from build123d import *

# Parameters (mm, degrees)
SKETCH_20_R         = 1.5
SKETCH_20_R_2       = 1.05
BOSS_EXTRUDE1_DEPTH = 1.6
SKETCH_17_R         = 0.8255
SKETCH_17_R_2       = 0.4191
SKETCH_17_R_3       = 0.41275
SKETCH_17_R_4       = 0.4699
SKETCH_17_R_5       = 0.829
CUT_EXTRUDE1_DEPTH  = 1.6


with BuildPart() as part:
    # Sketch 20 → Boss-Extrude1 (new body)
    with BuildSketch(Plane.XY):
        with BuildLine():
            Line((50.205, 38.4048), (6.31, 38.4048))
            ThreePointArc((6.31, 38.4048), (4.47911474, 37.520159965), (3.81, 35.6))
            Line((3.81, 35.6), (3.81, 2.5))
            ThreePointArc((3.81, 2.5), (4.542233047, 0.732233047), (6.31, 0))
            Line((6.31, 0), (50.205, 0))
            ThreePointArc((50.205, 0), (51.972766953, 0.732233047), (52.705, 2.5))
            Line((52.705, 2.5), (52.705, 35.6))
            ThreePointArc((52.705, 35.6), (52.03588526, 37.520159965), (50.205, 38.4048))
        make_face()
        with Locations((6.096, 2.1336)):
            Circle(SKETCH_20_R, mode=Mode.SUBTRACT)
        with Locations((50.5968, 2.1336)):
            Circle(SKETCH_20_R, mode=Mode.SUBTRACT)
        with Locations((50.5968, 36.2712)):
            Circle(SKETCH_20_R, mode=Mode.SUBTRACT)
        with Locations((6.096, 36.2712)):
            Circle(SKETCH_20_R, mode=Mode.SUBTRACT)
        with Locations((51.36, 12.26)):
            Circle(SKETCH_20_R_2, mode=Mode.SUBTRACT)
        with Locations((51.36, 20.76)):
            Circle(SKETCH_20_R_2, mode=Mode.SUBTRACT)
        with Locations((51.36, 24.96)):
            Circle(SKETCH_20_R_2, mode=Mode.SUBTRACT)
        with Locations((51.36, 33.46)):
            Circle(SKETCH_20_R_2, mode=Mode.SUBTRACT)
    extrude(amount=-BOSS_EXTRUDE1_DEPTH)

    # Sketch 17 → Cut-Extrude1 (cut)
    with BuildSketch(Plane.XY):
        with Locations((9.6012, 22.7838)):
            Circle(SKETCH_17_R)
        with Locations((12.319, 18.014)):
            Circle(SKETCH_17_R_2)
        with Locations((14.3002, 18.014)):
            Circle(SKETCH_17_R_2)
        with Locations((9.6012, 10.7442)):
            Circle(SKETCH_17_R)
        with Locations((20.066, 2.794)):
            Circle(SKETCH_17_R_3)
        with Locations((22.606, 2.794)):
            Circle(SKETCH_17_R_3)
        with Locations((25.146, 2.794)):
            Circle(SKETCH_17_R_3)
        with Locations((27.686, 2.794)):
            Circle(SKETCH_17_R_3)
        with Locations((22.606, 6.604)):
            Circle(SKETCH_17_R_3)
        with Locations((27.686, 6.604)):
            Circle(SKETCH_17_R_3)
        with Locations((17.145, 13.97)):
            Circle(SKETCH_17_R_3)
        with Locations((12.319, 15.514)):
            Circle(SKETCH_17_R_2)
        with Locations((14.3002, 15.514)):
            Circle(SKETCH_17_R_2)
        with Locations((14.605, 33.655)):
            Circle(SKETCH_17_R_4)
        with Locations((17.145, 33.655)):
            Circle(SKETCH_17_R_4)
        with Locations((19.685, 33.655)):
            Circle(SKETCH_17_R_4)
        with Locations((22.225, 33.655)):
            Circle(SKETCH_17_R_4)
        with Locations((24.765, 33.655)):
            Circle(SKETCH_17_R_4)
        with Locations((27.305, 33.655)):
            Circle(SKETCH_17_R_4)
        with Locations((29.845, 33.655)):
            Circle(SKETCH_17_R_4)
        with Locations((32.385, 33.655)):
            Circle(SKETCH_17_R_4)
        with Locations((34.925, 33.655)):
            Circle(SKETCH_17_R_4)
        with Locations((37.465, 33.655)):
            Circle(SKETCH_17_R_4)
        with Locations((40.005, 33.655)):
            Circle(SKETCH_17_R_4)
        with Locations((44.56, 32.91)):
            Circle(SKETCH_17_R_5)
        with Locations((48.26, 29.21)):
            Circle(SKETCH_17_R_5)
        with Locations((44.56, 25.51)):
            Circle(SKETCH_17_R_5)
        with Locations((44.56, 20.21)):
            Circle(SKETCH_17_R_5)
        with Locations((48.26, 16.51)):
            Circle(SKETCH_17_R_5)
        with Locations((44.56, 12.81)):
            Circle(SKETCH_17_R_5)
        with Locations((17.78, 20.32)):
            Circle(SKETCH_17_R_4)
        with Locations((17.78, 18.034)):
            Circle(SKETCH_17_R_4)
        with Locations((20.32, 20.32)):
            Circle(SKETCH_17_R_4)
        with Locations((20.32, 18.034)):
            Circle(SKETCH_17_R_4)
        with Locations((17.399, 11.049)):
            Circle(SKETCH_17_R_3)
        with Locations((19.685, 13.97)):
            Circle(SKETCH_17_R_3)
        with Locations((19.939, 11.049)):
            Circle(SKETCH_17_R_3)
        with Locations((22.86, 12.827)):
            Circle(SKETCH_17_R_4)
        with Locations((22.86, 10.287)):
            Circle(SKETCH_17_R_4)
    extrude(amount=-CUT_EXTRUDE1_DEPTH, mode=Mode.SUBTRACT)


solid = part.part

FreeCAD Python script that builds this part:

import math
import FreeCAD as App
import Part
import Sketcher
from FreeCAD import Vector
Q = App.Units.Quantity

doc = App.newDocument("Part")
params = doc.addObject("Spreadsheet::Sheet", "Params")
for row, (alias, value) in enumerate([
    ("sketch1_diameter", "3 mm"),
    ("sketch1_diameter2", "2.1 mm"),
    ("sketch1_radius", "2.5 mm"),
    ("sketch1_height", "33.1 mm"),
    ("pad1_length", "1.6 mm"),
    ("pocket1_length", "1.6 mm"),
], start=1):
    params.set(f"A{row}", alias)
    params.set(f"B{row}", "=" + value)
    params.setAlias(f"B{row}", alias)

body = doc.addObject("PartDesign::Body", "Body")

sketch1 = doc.addObject("Sketcher::SketchObject", "Sketch")
body.addObject(sketch1)
sketch1.AttachmentSupport = (doc.XY_Plane, [""])
sketch1.MapMode = "FlatFace"
sketch1.addGeometry([
    Part.LineSegment(Vector(50.205, 38.4048, 0), Vector(6.31, 38.4048, 0)),
    Part.ArcOfCircle(Part.Circle(Vector(6.462427, 35.752376, 0), Vector(0, 0, 1), 2.6568), math.radians(93.288998), math.radians(183.287904)),
    Part.LineSegment(Vector(3.81, 35.6, 0), Vector(3.81, 2.5, 0)),
    Part.ArcOfCircle(Part.Circle(Vector(6.31, 2.5, 0), Vector(0, 0, 1), 2.5), math.radians(180), math.radians(270)),
    Part.LineSegment(Vector(6.31, 0, 0), Vector(50.205, 0, 0)),
    Part.ArcOfCircle(Part.Circle(Vector(50.205, 2.5, 0), Vector(0, 0, 1), 2.5), math.radians(-90), math.radians(0)),
    Part.LineSegment(Vector(52.705, 2.5, 0), Vector(52.705, 35.6, 0)),
    Part.ArcOfCircle(Part.Circle(Vector(50.052573, 35.752376, 0), Vector(0, 0, 1), 2.6568), math.radians(-3.287904), math.radians(86.711002)),
    Part.Circle(Vector(6.096, 2.1336, 0), Vector(0, 0, 1), 1.5),
    Part.Circle(Vector(50.5968, 2.1336, 0), Vector(0, 0, 1), 1.5),
    Part.Circle(Vector(51.36, 12.26, 0), Vector(0, 0, 1), 1.05),
    Part.Circle(Vector(6.096, 36.2712, 0), Vector(0, 0, 1), 1.5),
    Part.Circle(Vector(51.36, 20.76, 0), Vector(0, 0, 1), 1.05),
    Part.Circle(Vector(51.36, 24.96, 0), Vector(0, 0, 1), 1.05),
    Part.Circle(Vector(51.36, 33.46, 0), Vector(0, 0, 1), 1.05),
    Part.Circle(Vector(50.5968, 36.2712, 0), Vector(0, 0, 1), 1.5),
], False)
sketch1.addConstraint([
    Sketcher.Constraint("Coincident", 0, 2, 1, 1),
    Sketcher.Constraint("Coincident", 1, 2, 2, 1),
    Sketcher.Constraint("Tangent", 2, 2, 3, 1),
    Sketcher.Constraint("Tangent", 3, 2, 4, 1),
    Sketcher.Constraint("Tangent", 4, 2, 5, 1),
    Sketcher.Constraint("Tangent", 5, 2, 6, 1),
    Sketcher.Constraint("Coincident", 6, 2, 7, 1),
    Sketcher.Constraint("Coincident", 7, 2, 0, 1),
    Sketcher.Constraint("Horizontal", 0),
    Sketcher.Constraint("Vertical", 2),
    Sketcher.Constraint("Horizontal", 4),
    Sketcher.Constraint("Vertical", 6),
    Sketcher.Constraint("Equal", 3, 5),
    Sketcher.Constraint("Equal", 1, 7),
    Sketcher.Constraint("Equal", 8, 9),
    Sketcher.Constraint("Equal", 9, 11),
    Sketcher.Constraint("Equal", 10, 12),
    Sketcher.Constraint("Equal", 12, 13),
    Sketcher.Constraint("Equal", 13, 14),
    Sketcher.Constraint("Equal", 11, 15),
    Sketcher.Constraint("PointOnObject", 3, 2, -1),
    Sketcher.Constraint("Horizontal", 1, 3, 7, 3),
    Sketcher.Constraint("Horizontal", 8, 3, 9, 3),
    Sketcher.Constraint("Horizontal", 11, 3, 15, 3),
    Sketcher.Constraint("Horizontal", 1, 2, 6, 2),
    Sketcher.Constraint("Vertical", 8, 3, 11, 3),
    Sketcher.Constraint("Vertical", 10, 3, 12, 3),
    Sketcher.Constraint("Vertical", 12, 3, 13, 3),
    Sketcher.Constraint("Vertical", 13, 3, 14, 3),
    Sketcher.Constraint("Vertical", 9, 3, 15, 3),
    Sketcher.Constraint("Vertical", 3, 3, 0, 2),
    Sketcher.Constraint("Diameter", 8, Q("3 mm")),
    Sketcher.Constraint("Diameter", 10, Q("2.1 mm")),
    Sketcher.Constraint("Radius", 3, Q("2.5 mm")),
    Sketcher.Constraint("DistanceY", 2, 2, 2, 1, Q("33.1 mm")),
    Sketcher.Constraint("Radius", 1, Q("2.6568 mm")),
    Sketcher.Constraint("DistanceY", 10, 3, 12, 3, Q("8.5 mm")),
    Sketcher.Constraint("DistanceY", 12, 3, 13, 3, Q("4.2 mm")),
    Sketcher.Constraint("DistanceY", 13, 3, 14, 3, Q("8.5 mm")),
    Sketcher.Constraint("DistanceX", 0, 2, 0, 1, Q("43.895 mm")),
    Sketcher.Constraint("DistanceX", -1, 1, 3, 3, Q("6.31 mm")),
    Sketcher.Constraint("DistanceX", -1, 1, 10, 3, Q("51.36 mm")),
    Sketcher.Constraint("DistanceY", -1, 1, 10, 3, Q("12.26 mm")),
    Sketcher.Constraint("DistanceX", -1, 1, 8, 3, Q("6.096 mm")),
    Sketcher.Constraint("DistanceY", -1, 1, 8, 3, Q("2.1336 mm")),
    Sketcher.Constraint("DistanceX", -1, 1, 9, 3, Q("50.5968 mm")),
    Sketcher.Constraint("DistanceY", -1, 1, 11, 3, Q("36.2712 mm")),
    Sketcher.Constraint("DistanceY", -1, 1, 0, 2, Q("38.4048 mm")),
])
sketch1.setExpression("Constraints[31]", "Params.sketch1_diameter")
sketch1.setExpression("Constraints[32]", "Params.sketch1_diameter2")
sketch1.setExpression("Constraints[33]", "Params.sketch1_radius")
sketch1.setExpression("Constraints[34]", "Params.sketch1_height")
pad1 = doc.addObject("PartDesign::Pad", "Pad")
body.addObject(pad1)
pad1.Profile = sketch1
pad1.setExpression("Length", "Params.pad1_length")
pad1.Reversed = True

sketch2 = doc.addObject("Sketcher::SketchObject", "Sketch001")
body.addObject(sketch2)
sketch2.AttachmentSupport = (doc.XY_Plane, [""])
sketch2.MapMode = "FlatFace"
sketch2.addGeometry([
    Part.Circle(Vector(9.6012, 22.7838, 0), Vector(0, 0, 1), 0.8255),
    Part.Circle(Vector(12.319, 18.014, 0), Vector(0, 0, 1), 0.4191),
    Part.Circle(Vector(14.3002, 18.014, 0), Vector(0, 0, 1), 0.4191),
    Part.Circle(Vector(9.6012, 10.7442, 0), Vector(0, 0, 1), 0.8255),
    Part.Circle(Vector(20.066, 2.794, 0), Vector(0, 0, 1), 0.41275),
    Part.Circle(Vector(22.606, 2.794, 0), Vector(0, 0, 1), 0.41275),
    Part.Circle(Vector(25.146, 2.794, 0), Vector(0, 0, 1), 0.41275),
    Part.Circle(Vector(27.686, 2.794, 0), Vector(0, 0, 1), 0.41275),
    Part.Circle(Vector(22.606, 6.604, 0), Vector(0, 0, 1), 0.41275),
    Part.Circle(Vector(27.686, 6.604, 0), Vector(0, 0, 1), 0.41275),
    Part.Circle(Vector(17.145, 13.97, 0), Vector(0, 0, 1), 0.41275),
    Part.Circle(Vector(12.319, 15.514, 0), Vector(0, 0, 1), 0.4191),
    Part.Circle(Vector(14.3002, 15.514, 0), Vector(0, 0, 1), 0.4191),
    Part.Circle(Vector(14.605, 33.655, 0), Vector(0, 0, 1), 0.4699),
    Part.Circle(Vector(17.145, 33.655, 0), Vector(0, 0, 1), 0.4699),
    Part.Circle(Vector(19.685, 33.655, 0), Vector(0, 0, 1), 0.4699),
    Part.Circle(Vector(22.225, 33.655, 0), Vector(0, 0, 1), 0.4699),
    Part.Circle(Vector(24.765, 33.655, 0), Vector(0, 0, 1), 0.4699),
    Part.Circle(Vector(27.305, 33.655, 0), Vector(0, 0, 1), 0.4699),
    Part.Circle(Vector(29.845, 33.655, 0), Vector(0, 0, 1), 0.4699),
    Part.Circle(Vector(32.385, 33.655, 0), Vector(0, 0, 1), 0.4699),
    Part.Circle(Vector(34.925, 33.655, 0), Vector(0, 0, 1), 0.4699),
    Part.Circle(Vector(37.465, 33.655, 0), Vector(0, 0, 1), 0.4699),
    Part.Circle(Vector(40.005, 33.655, 0), Vector(0, 0, 1), 0.4699),
    Part.Circle(Vector(44.56, 32.91, 0), Vector(0, 0, 1), 0.829),
    Part.Circle(Vector(48.26, 29.21, 0), Vector(0, 0, 1), 0.829),
    Part.Circle(Vector(44.56, 25.51, 0), Vector(0, 0, 1), 0.829),
    Part.Circle(Vector(44.56, 20.21, 0), Vector(0, 0, 1), 0.829),
    Part.Circle(Vector(48.26, 16.51, 0), Vector(0, 0, 1), 0.829),
    Part.Circle(Vector(44.56, 12.81, 0), Vector(0, 0, 1), 0.829),
    Part.Circle(Vector(17.78, 20.32, 0), Vector(0, 0, 1), 0.4699),
    Part.Circle(Vector(17.78, 18.034, 0), Vector(0, 0, 1), 0.4699),
    Part.Circle(Vector(20.32, 20.32, 0), Vector(0, 0, 1), 0.4699),
    Part.Circle(Vector(20.32, 18.034, 0), Vector(0, 0, 1), 0.4699),
    Part.Circle(Vector(17.399, 11.049, 0), Vector(0, 0, 1), 0.41275),
    Part.Circle(Vector(19.685, 13.97, 0), Vector(0, 0, 1), 0.41275),
    Part.Circle(Vector(19.939, 11.049, 0), Vector(0, 0, 1), 0.41275),
    Part.Circle(Vector(22.86, 12.827, 0), Vector(0, 0, 1), 0.4699),
    Part.Circle(Vector(22.86, 10.287, 0), Vector(0, 0, 1), 0.4699),
], False)
sketch2.addConstraint([
    Sketcher.Constraint("Equal", 1, 2),
    Sketcher.Constraint("Equal", 0, 3),
    Sketcher.Constraint("Equal", 4, 5),
    Sketcher.Constraint("Equal", 5, 6),
    Sketcher.Constraint("Equal", 6, 7),
    Sketcher.Constraint("Equal", 7, 8),
    Sketcher.Constraint("Equal", 8, 9),
    Sketcher.Constraint("Equal", 9, 10),
    Sketcher.Constraint("Equal", 2, 11),
    Sketcher.Constraint("Equal", 11, 12),
    Sketcher.Constraint("Equal", 13, 14),
    Sketcher.Constraint("Equal", 14, 15),
    Sketcher.Constraint("Equal", 15, 16),
    Sketcher.Constraint("Equal", 16, 17),
    Sketcher.Constraint("Equal", 17, 18),
    Sketcher.Constraint("Equal", 18, 19),
    Sketcher.Constraint("Equal", 19, 20),
    Sketcher.Constraint("Equal", 20, 21),
    Sketcher.Constraint("Equal", 21, 22),
    Sketcher.Constraint("Equal", 22, 23),
    Sketcher.Constraint("Equal", 24, 25),
    Sketcher.Constraint("Equal", 25, 26),
    Sketcher.Constraint("Equal", 26, 27),
    Sketcher.Constraint("Equal", 27, 28),
    Sketcher.Constraint("Equal", 28, 29),
    Sketcher.Constraint("Equal", 23, 30),
    Sketcher.Constraint("Equal", 30, 31),
    Sketcher.Constraint("Equal", 31, 32),
    Sketcher.Constraint("Equal", 32, 33),
    Sketcher.Constraint("Equal", 10, 34),
    Sketcher.Constraint("Equal", 34, 35),
    Sketcher.Constraint("Equal", 35, 36),
    Sketcher.Constraint("Equal", 33, 37),
    Sketcher.Constraint("Equal", 37, 38),
    Sketcher.Constraint("Horizontal", 1, 3, 2, 3),
    Sketcher.Constraint("Horizontal", 4, 3, 5, 3),
    Sketcher.Constraint("Horizontal", 5, 3, 6, 3),
    Sketcher.Constraint("Horizontal", 6, 3, 7, 3),
    Sketcher.Constraint("Horizontal", 8, 3, 9, 3),
    Sketcher.Constraint("Horizontal", 11, 3, 12, 3),
    Sketcher.Constraint("Horizontal", 13, 3, 14, 3),
    Sketcher.Constraint("Horizontal", 14, 3, 15, 3),
    Sketcher.Constraint("Horizontal", 15, 3, 16, 3),
    Sketcher.Constraint("Horizontal", 16, 3, 17, 3),
    Sketcher.Constraint("Horizontal", 17, 3, 18, 3),
    Sketcher.Constraint("Horizontal", 18, 3, 19, 3),
    Sketcher.Constraint("Horizontal", 19, 3, 20, 3),
    Sketcher.Constraint("Horizontal", 20, 3, 21, 3),
    Sketcher.Constraint("Horizontal", 21, 3, 22, 3),
    Sketcher.Constraint("Horizontal", 22, 3, 23, 3),
    Sketcher.Constraint("Horizontal", 30, 3, 32, 3),
    Sketcher.Constraint("Horizontal", 31, 3, 33, 3),
    Sketcher.Constraint("Horizontal", 10, 3, 35, 3),
    Sketcher.Constraint("Horizontal", 34, 3, 36, 3),
    Sketcher.Constraint("Vertical", 0, 3, 3, 3),
    Sketcher.Constraint("Vertical", 5, 3, 8, 3),
    Sketcher.Constraint("Vertical", 7, 3, 9, 3),
    Sketcher.Constraint("Vertical", 1, 3, 11, 3),
    Sketcher.Constraint("Vertical", 2, 3, 12, 3),
    Sketcher.Constraint("Vertical", 10, 3, 14, 3),
    Sketcher.Constraint("Vertical", 24, 3, 26, 3),
    Sketcher.Constraint("Vertical", 26, 3, 27, 3),
    Sketcher.Constraint("Vertical", 25, 3, 28, 3),
    Sketcher.Constraint("Vertical", 27, 3, 29, 3),
    Sketcher.Constraint("Vertical", 30, 3, 31, 3),
    Sketcher.Constraint("Vertical", 32, 3, 33, 3),
    Sketcher.Constraint("Vertical", 15, 3, 35, 3),
    Sketcher.Constraint("Vertical", 37, 3, 38, 3),
    Sketcher.Constraint("Diameter", 0, Q("1.651 mm")),
    Sketcher.Constraint("Diameter", 24, Q("1.658 mm")),
    Sketcher.Constraint("DistanceY", 27, 3, 25, 3, Q("9 mm")),
    Sketcher.Constraint("DistanceY", 28, 3, 26, 3, Q("9 mm")),
    Sketcher.Constraint("Diameter", 1, Q("0.8382 mm")),
    Sketcher.Constraint("Diameter", 4, Q("0.8255 mm")),
    Sketcher.Constraint("Diameter", 13, Q("0.9398 mm")),
    Sketcher.Constraint("DistanceY", 11, 3, 1, 3, Q("2.5 mm")),
    Sketcher.Constraint("DistanceX", 13, 3, 18, 3, Q("12.7 mm")),
    Sketcher.Constraint("DistanceX", 14, 3, 19, 3, Q("12.7 mm")),
    Sketcher.Constraint("DistanceX", 15, 3, 20, 3, Q("12.7 mm")),
    Sketcher.Constraint("DistanceX", 16, 3, 21, 3, Q("12.7 mm")),
    Sketcher.Constraint("DistanceX", 17, 3, 22, 3, Q("12.7 mm")),
    Sketcher.Constraint("DistanceX", 18, 3, 23, 3, Q("12.7 mm")),
    Sketcher.Constraint("DistanceX", 24, 3, 25, 3, Q("3.7 mm")),
    Sketcher.Constraint("DistanceY", 25, 3, 24, 3, Q("3.7 mm")),
    Sketcher.Constraint("DistanceY", 26, 3, 25, 3, Q("3.7 mm")),
    Sketcher.Constraint("DistanceY", 29, 3, 28, 3, Q("3.7 mm")),
    Sketcher.Constraint("DistanceY", -1, 1, 10, 3, Q("13.97 mm")),
    Sketcher.Constraint("DistanceX", -1, 1, 24, 3, Q("44.56 mm")),
    Sketcher.Constraint("DistanceY", -1, 1, 24, 3, Q("32.91 mm")),
    Sketcher.Constraint("DistanceX", -1, 1, 30, 3, Q("17.78 mm")),
    Sketcher.Constraint("DistanceY", -1, 1, 30, 3, Q("20.32 mm")),
    Sketcher.Constraint("DistanceX", -1, 1, 32, 3, Q("20.32 mm")),
    Sketcher.Constraint("DistanceX", -1, 1, 37, 3, Q("22.86 mm")),
    Sketcher.Constraint("DistanceY", 4, 3, 2, 3, Q("15.22 mm")),
    Sketcher.Constraint("DistanceX", 4, 3, 5, 3, Q("2.54 mm")),
    Sketcher.Constraint("DistanceX", 5, 3, 6, 3, Q("2.54 mm")),
    Sketcher.Constraint("DistanceX", 6, 3, 7, 3, Q("2.54 mm")),
    Sketcher.Constraint("DistanceY", 5, 3, 8, 3, Q("3.81 mm")),
    Sketcher.Constraint("DistanceX", 13, 3, 14, 3, Q("2.54 mm")),
    Sketcher.Constraint("DistanceX", 14, 3, 15, 3, Q("2.54 mm")),
    Sketcher.Constraint("DistanceX", 15, 3, 16, 3, Q("2.54 mm")),
    Sketcher.Constraint("DistanceX", 16, 3, 17, 3, Q("2.54 mm")),
    Sketcher.Constraint("DistanceY", 2, 3, 31, 3, Q("0.02 mm")),
    Sketcher.Constraint("DistanceX", 11, 3, 34, 3, Q("5.08 mm")),
    Sketcher.Constraint("DistanceX", 34, 3, 36, 3, Q("2.54 mm")),
    Sketcher.Constraint("DistanceY", 38, 3, 37, 3, Q("2.54 mm")),
    Sketcher.Constraint("DistanceX", -1, 1, 1, 3, Q("12.319 mm")),
    Sketcher.Constraint("DistanceY", -1, 1, 1, 3, Q("18.014 mm")),
    Sketcher.Constraint("DistanceX", -1, 1, 4, 3, Q("20.066 mm")),
    Sketcher.Constraint("DistanceX", -1, 1, 10, 3, Q("17.145 mm")),
    Sketcher.Constraint("DistanceY", -1, 1, 13, 3, Q("33.655 mm")),
    Sketcher.Constraint("DistanceY", -1, 1, 34, 3, Q("11.049 mm")),
    Sketcher.Constraint("DistanceY", -1, 1, 37, 3, Q("12.827 mm")),
    Sketcher.Constraint("DistanceX", 0, 3, 2, 3, Q("4.699 mm")),
    Sketcher.Constraint("DistanceX", -1, 1, 0, 3, Q("9.6012 mm")),
    Sketcher.Constraint("DistanceY", -1, 1, 0, 3, Q("22.7838 mm")),
    Sketcher.Constraint("DistanceY", -1, 1, 3, 3, Q("10.7442 mm")),
])
pocket1 = doc.addObject("PartDesign::Pocket", "Pocket")
body.addObject(pocket1)
pocket1.Profile = sketch2
pocket1.setExpression("Length", "Params.pocket1_length")

doc.recompute()
